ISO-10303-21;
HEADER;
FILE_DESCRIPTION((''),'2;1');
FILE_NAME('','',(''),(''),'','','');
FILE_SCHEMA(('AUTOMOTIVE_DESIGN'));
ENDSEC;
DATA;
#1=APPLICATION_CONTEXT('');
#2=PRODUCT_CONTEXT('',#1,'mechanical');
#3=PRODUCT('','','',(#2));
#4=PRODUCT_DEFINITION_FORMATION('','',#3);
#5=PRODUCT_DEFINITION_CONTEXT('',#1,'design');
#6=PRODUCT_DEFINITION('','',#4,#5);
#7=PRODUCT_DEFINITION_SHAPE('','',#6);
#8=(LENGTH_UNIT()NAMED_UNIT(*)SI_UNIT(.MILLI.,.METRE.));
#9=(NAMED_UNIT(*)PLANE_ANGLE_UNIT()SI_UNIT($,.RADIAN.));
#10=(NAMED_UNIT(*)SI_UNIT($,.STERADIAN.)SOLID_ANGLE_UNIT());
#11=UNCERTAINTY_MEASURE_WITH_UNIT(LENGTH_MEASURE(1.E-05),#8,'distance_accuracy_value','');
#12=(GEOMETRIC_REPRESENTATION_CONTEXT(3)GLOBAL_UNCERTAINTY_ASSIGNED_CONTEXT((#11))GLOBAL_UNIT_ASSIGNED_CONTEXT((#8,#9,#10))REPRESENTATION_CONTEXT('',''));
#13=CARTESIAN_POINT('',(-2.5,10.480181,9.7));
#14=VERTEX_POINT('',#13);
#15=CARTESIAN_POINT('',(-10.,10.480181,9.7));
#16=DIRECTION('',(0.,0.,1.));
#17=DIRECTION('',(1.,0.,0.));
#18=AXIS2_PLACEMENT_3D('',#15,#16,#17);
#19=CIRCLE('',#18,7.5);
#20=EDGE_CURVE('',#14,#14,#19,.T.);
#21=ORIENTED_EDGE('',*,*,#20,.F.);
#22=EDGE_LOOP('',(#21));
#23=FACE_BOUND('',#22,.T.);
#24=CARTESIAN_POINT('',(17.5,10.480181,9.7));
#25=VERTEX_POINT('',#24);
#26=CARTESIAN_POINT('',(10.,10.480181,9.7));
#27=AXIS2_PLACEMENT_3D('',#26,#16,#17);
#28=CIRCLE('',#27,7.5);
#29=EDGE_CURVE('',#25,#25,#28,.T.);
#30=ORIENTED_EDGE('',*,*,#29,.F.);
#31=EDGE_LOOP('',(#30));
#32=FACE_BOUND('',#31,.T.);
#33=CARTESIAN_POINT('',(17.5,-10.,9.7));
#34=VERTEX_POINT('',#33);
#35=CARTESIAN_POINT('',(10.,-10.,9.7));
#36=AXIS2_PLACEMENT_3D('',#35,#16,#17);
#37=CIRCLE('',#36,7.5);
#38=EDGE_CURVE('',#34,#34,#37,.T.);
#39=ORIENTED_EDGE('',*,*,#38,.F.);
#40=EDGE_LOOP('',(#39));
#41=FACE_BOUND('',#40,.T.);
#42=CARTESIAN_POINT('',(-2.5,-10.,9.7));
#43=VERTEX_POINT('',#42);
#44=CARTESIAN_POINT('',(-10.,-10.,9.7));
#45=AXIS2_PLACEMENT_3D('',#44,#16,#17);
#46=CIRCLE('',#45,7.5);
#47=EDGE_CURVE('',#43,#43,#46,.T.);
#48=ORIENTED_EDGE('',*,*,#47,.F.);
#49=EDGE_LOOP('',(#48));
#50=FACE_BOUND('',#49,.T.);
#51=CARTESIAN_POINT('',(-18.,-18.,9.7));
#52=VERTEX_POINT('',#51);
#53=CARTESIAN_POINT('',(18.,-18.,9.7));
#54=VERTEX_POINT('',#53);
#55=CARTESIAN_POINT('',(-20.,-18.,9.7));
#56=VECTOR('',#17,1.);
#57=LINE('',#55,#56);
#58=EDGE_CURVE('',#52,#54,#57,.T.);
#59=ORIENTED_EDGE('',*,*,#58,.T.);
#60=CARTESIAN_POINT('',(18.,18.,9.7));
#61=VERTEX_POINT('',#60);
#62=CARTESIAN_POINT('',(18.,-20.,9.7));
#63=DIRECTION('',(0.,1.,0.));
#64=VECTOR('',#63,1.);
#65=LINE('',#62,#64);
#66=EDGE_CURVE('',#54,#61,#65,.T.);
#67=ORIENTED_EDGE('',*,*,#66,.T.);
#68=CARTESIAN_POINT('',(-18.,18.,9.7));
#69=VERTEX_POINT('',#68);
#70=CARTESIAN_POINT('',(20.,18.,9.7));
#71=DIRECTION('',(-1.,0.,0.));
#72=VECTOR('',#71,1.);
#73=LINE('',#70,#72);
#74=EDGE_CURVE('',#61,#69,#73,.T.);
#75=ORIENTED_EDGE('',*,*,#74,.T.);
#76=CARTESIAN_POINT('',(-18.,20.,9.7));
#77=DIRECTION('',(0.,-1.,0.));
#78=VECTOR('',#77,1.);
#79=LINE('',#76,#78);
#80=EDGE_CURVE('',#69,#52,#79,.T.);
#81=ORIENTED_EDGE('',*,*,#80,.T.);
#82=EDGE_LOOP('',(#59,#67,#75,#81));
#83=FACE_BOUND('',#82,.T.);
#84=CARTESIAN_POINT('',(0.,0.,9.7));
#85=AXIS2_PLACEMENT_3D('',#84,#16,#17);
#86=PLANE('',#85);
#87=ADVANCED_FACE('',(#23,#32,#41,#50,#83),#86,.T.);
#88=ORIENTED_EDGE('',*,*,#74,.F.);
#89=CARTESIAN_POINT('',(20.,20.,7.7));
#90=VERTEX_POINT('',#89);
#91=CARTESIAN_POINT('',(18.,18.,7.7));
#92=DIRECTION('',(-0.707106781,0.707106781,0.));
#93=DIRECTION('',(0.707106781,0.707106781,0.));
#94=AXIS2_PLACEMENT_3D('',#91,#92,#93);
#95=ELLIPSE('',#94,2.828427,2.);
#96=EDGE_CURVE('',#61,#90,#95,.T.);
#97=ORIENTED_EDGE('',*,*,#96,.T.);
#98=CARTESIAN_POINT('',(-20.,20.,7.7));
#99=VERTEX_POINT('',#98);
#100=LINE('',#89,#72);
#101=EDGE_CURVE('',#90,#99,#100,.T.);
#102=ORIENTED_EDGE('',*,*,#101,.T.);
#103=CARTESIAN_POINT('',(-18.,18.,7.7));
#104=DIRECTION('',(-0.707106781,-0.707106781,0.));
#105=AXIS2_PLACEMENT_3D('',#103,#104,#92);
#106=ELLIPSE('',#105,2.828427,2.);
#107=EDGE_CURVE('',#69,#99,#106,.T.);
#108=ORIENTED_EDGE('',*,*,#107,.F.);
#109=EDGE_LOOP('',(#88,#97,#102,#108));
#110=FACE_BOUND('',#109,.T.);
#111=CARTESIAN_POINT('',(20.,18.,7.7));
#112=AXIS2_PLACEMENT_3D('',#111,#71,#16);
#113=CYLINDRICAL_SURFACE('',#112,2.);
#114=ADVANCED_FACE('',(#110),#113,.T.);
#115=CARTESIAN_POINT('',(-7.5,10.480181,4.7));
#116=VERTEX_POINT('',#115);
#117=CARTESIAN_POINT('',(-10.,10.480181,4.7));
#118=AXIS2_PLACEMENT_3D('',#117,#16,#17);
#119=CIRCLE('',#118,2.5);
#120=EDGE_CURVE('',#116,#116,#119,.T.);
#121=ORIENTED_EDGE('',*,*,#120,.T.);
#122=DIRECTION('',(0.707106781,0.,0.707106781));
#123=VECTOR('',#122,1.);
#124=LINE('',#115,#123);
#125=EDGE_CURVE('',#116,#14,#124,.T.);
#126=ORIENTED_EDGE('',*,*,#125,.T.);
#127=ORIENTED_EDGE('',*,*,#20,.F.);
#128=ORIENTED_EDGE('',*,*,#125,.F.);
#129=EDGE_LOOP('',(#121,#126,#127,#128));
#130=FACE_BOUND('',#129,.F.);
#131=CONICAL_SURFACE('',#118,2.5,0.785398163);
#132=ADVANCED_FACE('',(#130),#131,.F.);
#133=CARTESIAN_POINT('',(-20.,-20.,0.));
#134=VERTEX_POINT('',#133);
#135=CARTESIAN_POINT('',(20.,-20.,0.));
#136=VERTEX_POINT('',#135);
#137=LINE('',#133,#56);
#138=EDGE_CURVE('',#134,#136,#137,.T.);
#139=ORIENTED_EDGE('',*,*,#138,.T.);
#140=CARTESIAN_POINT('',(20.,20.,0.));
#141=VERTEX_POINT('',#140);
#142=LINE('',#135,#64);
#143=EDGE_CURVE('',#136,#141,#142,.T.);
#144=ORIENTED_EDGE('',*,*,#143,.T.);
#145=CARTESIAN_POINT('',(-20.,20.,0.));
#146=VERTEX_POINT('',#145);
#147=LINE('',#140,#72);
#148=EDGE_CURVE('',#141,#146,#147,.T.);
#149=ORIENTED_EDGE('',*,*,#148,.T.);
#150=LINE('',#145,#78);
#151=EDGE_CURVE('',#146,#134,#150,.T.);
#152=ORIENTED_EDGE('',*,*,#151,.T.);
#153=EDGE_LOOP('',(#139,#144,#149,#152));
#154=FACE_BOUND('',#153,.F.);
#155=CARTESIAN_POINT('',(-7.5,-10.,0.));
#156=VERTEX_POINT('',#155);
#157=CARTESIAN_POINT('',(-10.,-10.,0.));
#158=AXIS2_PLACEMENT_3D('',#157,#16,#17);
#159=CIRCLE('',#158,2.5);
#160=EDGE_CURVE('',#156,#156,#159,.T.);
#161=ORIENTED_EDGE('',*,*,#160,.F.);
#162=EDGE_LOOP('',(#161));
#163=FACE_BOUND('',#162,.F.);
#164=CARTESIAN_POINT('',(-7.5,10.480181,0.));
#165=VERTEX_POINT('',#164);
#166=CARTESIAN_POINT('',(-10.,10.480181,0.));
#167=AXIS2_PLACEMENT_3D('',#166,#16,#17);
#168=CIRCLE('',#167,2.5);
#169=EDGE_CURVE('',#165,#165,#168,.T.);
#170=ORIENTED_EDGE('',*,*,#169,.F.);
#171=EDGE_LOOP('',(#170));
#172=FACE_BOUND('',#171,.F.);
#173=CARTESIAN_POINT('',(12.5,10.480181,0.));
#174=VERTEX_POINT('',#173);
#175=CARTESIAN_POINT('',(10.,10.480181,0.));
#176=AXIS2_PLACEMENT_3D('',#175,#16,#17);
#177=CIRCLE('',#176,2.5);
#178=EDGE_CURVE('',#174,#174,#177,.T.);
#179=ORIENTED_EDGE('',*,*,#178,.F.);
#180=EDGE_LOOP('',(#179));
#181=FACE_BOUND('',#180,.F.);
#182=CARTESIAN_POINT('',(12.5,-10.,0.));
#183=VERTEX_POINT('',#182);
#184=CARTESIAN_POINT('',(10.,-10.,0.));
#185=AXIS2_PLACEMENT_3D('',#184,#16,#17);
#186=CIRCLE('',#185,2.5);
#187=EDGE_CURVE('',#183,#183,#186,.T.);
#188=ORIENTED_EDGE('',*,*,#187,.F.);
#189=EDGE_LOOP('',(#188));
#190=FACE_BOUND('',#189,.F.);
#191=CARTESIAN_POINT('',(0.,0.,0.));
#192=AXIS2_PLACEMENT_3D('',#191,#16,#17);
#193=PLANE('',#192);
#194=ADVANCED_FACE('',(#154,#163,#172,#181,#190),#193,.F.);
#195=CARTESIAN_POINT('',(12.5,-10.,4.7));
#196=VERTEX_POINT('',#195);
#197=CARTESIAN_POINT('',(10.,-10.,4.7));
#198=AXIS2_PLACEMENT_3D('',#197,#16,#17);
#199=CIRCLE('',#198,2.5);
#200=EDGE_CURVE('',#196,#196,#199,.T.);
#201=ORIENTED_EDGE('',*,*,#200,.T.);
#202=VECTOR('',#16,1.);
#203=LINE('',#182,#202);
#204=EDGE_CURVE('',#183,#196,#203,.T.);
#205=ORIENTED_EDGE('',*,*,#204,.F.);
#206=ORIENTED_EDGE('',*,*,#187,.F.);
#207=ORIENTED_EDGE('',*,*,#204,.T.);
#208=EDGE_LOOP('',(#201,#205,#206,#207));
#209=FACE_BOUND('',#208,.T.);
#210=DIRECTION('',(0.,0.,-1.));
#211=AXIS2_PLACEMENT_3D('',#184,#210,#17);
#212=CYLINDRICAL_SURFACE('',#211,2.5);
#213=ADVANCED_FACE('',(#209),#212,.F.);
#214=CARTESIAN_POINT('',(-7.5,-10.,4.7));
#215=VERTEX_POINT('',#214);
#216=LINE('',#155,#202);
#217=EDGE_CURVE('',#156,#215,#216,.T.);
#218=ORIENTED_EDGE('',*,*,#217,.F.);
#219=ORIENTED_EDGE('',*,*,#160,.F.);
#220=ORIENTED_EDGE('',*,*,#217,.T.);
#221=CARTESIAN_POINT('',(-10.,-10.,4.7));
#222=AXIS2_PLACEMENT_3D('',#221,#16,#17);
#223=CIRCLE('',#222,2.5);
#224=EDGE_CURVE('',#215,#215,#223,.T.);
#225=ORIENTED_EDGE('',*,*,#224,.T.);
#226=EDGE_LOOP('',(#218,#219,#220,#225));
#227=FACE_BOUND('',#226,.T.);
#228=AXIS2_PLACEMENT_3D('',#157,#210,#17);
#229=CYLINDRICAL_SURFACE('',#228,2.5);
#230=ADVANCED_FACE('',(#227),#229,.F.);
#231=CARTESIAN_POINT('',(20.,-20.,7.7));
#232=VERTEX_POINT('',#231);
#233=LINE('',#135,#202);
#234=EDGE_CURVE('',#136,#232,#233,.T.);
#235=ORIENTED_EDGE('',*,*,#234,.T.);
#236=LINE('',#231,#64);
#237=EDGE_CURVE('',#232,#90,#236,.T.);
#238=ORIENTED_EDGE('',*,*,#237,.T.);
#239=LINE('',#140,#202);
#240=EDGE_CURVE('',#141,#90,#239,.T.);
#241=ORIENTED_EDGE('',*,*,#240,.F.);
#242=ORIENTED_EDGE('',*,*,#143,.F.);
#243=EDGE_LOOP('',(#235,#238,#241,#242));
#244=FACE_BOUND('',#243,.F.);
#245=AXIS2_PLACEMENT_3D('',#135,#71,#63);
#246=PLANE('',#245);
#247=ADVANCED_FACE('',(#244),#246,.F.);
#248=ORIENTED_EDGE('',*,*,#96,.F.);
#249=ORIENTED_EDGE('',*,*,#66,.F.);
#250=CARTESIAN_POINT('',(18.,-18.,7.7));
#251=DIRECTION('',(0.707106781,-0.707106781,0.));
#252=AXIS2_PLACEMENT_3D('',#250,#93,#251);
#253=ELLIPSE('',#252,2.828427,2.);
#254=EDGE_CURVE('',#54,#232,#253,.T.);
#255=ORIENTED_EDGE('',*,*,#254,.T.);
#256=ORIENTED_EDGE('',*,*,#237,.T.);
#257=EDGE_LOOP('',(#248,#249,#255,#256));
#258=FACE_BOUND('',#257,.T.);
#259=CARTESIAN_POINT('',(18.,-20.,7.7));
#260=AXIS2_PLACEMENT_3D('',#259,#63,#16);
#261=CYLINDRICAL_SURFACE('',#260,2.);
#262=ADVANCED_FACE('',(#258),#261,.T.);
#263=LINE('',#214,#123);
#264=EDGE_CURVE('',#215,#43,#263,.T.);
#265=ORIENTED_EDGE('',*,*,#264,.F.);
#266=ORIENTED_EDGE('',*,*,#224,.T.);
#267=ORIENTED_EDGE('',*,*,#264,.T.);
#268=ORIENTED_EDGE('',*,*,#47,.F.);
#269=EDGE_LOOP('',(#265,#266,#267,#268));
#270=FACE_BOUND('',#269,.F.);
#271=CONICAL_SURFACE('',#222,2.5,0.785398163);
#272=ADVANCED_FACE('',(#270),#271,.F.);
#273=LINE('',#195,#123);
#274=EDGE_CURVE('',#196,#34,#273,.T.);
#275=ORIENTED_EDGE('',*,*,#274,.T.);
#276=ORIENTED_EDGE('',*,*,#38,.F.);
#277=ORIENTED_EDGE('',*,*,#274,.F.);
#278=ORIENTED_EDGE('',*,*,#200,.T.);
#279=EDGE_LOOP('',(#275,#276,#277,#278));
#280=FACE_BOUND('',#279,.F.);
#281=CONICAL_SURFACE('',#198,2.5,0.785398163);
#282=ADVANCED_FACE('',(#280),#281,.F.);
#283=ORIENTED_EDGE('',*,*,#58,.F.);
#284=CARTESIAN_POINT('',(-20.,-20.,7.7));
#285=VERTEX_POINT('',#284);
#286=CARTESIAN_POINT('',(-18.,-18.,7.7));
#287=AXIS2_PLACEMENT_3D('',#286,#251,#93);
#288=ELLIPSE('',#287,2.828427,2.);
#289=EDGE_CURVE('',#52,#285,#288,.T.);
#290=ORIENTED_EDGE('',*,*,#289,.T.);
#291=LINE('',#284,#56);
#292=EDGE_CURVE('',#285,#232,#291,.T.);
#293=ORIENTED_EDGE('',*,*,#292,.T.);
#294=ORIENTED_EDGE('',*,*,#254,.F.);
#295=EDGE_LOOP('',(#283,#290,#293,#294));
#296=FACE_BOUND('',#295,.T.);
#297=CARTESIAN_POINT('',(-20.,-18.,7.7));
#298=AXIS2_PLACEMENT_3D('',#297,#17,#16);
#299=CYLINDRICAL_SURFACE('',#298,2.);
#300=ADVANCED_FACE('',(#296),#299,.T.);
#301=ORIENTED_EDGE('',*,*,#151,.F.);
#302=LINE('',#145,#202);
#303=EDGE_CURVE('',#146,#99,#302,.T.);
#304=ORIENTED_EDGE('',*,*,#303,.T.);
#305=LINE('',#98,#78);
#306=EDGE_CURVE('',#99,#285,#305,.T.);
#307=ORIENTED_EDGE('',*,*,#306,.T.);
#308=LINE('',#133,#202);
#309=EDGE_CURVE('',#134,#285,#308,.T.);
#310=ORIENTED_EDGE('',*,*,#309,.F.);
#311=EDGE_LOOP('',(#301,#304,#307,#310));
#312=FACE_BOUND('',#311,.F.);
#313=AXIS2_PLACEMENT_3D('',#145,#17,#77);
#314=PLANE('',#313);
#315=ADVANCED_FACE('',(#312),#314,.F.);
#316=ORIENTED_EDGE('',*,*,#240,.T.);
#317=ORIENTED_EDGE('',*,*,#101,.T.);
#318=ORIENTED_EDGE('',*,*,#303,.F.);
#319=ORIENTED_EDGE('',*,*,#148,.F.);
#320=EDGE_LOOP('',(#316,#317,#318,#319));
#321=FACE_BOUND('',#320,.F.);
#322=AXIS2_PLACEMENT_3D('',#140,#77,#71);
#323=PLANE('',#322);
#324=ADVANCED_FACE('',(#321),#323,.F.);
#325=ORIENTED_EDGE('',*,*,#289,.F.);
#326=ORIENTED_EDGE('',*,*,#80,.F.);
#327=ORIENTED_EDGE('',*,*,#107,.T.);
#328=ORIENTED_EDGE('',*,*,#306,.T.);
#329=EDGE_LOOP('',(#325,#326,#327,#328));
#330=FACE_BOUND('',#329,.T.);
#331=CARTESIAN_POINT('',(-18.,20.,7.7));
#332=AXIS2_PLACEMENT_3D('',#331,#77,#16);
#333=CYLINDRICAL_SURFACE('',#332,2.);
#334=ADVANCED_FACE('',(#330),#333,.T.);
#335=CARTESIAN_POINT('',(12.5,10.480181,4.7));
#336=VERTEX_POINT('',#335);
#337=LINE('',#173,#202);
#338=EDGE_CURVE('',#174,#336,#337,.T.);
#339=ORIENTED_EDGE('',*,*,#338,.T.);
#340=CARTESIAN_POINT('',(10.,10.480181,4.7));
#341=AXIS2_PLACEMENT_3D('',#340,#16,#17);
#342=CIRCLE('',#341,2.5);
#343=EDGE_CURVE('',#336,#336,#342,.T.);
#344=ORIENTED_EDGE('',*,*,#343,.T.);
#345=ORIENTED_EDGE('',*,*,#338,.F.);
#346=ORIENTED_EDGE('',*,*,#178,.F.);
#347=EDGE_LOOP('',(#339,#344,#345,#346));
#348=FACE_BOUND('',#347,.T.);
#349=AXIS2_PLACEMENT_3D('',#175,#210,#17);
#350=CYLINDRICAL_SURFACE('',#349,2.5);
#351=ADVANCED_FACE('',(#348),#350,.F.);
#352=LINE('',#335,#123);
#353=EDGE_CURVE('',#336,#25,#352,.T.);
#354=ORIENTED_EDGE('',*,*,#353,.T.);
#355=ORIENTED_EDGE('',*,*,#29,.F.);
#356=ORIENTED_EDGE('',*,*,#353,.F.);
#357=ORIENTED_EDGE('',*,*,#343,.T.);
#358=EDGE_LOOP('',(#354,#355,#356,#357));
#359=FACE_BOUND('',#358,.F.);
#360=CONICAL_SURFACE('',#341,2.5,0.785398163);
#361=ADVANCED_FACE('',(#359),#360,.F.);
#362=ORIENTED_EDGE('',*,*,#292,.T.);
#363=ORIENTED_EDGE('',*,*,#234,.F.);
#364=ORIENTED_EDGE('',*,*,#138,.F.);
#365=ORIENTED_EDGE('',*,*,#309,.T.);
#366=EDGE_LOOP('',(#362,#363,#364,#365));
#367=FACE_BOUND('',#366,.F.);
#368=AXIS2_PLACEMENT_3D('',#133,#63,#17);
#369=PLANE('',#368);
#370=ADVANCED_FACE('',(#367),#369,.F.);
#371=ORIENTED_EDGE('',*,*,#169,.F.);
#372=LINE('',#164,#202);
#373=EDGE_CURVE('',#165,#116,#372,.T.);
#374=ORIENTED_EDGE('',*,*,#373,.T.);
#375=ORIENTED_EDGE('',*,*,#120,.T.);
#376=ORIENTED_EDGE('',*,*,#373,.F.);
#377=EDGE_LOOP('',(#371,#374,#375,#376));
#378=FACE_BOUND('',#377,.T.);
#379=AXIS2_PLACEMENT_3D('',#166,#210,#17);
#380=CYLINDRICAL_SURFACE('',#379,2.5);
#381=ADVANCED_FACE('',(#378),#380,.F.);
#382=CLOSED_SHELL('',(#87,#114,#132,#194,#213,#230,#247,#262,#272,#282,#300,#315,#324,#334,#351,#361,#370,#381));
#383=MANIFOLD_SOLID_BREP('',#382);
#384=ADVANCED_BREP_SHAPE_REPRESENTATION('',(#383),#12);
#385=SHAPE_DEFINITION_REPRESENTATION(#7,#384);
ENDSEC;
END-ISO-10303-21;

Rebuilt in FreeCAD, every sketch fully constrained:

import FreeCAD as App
import Part
import Sketcher

V = App.Vector


def edges_at(feature, points):
    """Names of the edges that pass closest to the given points."""
    edges = feature.Shape.Edges
    near = lambda p: min(range(len(edges)), key=lambda i: edges[i].distToShape(Part.Vertex(*p))[0])
    return sorted({f"Edge{near(p) + 1}" for p in points})


def add_polygon(sketch, points):
    """Adds a closed chain of lines whose ends are joined by coincident constraints."""
    first, n = sketch.GeometryCount, len(points)
    for a, b in zip(points, points[1:] + points[:1]):
        sketch.addGeometry(Part.LineSegment(App.Vector(*a, 0), App.Vector(*b, 0)), False)
    for i in range(n):
        sketch.addConstraint(Sketcher.Constraint("Coincident", first + i, 2, first + (i + 1) % n, 1))

doc = App.newDocument("Part")
body = doc.addObject("PartDesign::Body", "Body")

# Sketch on XY plane
sketch1 = body.newObject("Sketcher::SketchObject", "Sketch")
sketch1.AttachmentSupport = (doc.getObject("XY_Plane"), [""])
sketch1.MapMode = "FlatFace"
add_polygon(sketch1, [(-20, -20), (20, -20), (20, 20), (-20, 20)])  # lines 0-3
sketch1.addGeometry(Part.Circle(V(-10, -10, 0), V(0, 0, 1), 2.5), False)  # 4
sketch1.addGeometry(Part.Circle(V(10, -10, 0), V(0, 0, 1), 2.5), False)  # 5
sketch1.addGeometry(Part.Circle(V(-10, 10.5, 0), V(0, 0, 1), 2.5), False)  # 6
sketch1.addGeometry(Part.Circle(V(10, 10.5, 0), V(0, 0, 1), 2.5), False)  # 7
sketch1.addConstraint([
    Sketcher.Constraint("Horizontal", 0),
    Sketcher.Constraint("Vertical", 1),
    Sketcher.Constraint("Horizontal", 2),
    Sketcher.Constraint("Vertical", 3),
    Sketcher.Constraint("Equal", 4, 5),
    Sketcher.Constraint("Equal", 5, 6),
    Sketcher.Constraint("Equal", 6, 7),
    Sketcher.Constraint("Symmetric", 0, 2, 2, 2, -1, 1),
    Sketcher.Constraint("Symmetric", 4, 3, 5, 3, -2),
    Sketcher.Constraint("Symmetric", 6, 3, 7, 3, -2),
    Sketcher.Constraint("Vertical", 4, 3, 6, 3),
    Sketcher.Constraint("Equal", 2, 1),
    Sketcher.Constraint("Diameter", 4, 5.0),
    Sketcher.Constraint("DistanceX", 0, 1, 0, 2, 40.0),
    Sketcher.Constraint("DistanceX", 4, 3, -1, 1, 10.0),
    Sketcher.Constraint("DistanceY", 4, 3, -1, 1, 10.0),
    Sketcher.Constraint("DistanceY", -1, 1, 6, 3, 10.480181),
])
pad1 = body.newObject("PartDesign::Pad", "Pad")
pad1.Profile = sketch1
pad1.Length = 9.7
doc.recompute()

chamfer = body.newObject("PartDesign::Chamfer", "Chamfer")
chamfer.Base = (pad1, edges_at(pad1, [
    (-12.5, 10.48, 9.7),
    (7.5, 10.48, 9.7),
    (7.5, -10, 9.7),
    (-12.5, -10, 9.7),
]))
chamfer.Size = 5
doc.recompute()

fillet = body.newObject("PartDesign::Fillet", "Fillet")
fillet.Base = (chamfer, edges_at(chamfer, [
    (0, -20, 9.7),
    (20, 0, 9.7),
    (0, 20, 9.7),
    (-20, 0, 9.7),
]))
fillet.Radius = 2

doc.recompute()
